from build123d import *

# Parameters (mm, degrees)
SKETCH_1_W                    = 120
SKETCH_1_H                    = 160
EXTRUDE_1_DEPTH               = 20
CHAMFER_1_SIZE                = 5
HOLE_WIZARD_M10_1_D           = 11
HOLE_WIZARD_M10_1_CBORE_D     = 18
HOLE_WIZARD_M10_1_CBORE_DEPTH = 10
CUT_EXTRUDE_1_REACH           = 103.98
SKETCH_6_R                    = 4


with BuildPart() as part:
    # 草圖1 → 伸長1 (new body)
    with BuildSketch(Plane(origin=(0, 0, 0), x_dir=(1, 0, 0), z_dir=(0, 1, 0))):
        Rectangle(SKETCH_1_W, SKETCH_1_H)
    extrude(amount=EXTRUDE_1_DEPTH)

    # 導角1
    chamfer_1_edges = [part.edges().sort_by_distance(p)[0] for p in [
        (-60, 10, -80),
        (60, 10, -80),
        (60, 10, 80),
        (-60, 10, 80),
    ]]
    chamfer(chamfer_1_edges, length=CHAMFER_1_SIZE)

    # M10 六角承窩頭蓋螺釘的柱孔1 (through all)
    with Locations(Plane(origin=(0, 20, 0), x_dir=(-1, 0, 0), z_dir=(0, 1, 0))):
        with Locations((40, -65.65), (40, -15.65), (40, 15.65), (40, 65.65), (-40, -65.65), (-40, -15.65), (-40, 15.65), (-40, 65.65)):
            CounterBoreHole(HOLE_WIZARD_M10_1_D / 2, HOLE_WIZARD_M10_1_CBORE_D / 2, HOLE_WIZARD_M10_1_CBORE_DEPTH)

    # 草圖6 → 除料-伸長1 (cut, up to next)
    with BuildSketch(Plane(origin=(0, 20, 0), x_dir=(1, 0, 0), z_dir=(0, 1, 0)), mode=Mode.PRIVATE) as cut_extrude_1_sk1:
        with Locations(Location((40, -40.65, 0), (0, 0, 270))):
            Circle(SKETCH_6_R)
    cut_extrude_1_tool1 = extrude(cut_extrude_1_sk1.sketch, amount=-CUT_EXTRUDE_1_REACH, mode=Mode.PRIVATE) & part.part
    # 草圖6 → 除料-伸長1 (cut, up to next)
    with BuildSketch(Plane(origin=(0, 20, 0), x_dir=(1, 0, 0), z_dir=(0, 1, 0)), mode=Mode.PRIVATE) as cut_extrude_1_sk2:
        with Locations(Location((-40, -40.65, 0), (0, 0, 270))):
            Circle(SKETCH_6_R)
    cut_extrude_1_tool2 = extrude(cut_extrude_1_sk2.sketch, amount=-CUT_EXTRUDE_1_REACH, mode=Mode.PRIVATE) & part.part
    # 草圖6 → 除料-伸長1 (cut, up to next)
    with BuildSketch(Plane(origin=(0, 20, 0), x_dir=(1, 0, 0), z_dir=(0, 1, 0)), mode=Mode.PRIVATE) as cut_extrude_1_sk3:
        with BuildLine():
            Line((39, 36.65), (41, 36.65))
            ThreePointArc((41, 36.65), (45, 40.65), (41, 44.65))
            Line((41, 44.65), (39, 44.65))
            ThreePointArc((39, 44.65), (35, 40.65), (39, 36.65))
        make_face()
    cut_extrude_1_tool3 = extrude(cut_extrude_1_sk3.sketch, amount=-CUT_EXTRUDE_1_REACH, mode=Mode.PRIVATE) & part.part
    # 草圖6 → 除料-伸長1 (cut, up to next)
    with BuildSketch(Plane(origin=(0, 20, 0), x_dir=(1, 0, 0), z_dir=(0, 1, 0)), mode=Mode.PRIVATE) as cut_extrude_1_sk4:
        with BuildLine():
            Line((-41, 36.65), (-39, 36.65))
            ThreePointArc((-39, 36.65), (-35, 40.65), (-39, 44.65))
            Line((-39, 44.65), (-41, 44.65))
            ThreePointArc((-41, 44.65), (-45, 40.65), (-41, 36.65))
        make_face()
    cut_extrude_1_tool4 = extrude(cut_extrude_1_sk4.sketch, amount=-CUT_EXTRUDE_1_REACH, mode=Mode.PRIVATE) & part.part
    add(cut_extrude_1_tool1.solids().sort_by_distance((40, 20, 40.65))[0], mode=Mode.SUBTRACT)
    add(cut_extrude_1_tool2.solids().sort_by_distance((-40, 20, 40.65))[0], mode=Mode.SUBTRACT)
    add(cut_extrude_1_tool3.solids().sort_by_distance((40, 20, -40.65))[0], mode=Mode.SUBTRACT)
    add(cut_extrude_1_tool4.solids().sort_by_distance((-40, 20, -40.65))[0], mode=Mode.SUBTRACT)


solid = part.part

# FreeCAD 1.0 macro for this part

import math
import FreeCAD as App
import Part
import Sketcher


def edges_at(feature, points):
    """Names of the edges that pass closest to the given points."""
    edges = feature.Shape.Edges
    near = lambda p: min(range(len(edges)), key=lambda i: edges[i].distToShape(Part.Vertex(*p))[0])
    return sorted({f"Edge{near(p) + 1}" for p in points})

doc = App.newDocument("Part")
body = doc.addObject("PartDesign::Body", "Body")

# Sketch on XZ plane
sketch1 = doc.addObject("Sketcher::SketchObject", "Sketch")
body.addObject(sketch1)
sketch1.AttachmentSupport = (doc.XZ_Plane, [""])
sketch1.MapMode = "FlatFace"
sketch1.addGeometry(Part.LineSegment(App.Vector(-60, -80, 0), App.Vector(-60, 80, 0)), False)
sketch1.addGeometry(Part.LineSegment(App.Vector(-60, 80, 0), App.Vector(60, 80, 0)), False)
sketch1.addGeometry(Part.LineSegment(App.Vector(60, 80, 0), App.Vector(60, -80, 0)), False)
sketch1.addGeometry(Part.LineSegment(App.Vector(60, -80, 0), App.Vector(-60, -80, 0)), False)
sketch1.addConstraint(Sketcher.Constraint("Coincident", 0, 2, 1, 1))
sketch1.addConstraint(Sketcher.Constraint("Coincident", 1, 2, 2, 1))
sketch1.addConstraint(Sketcher.Constraint("Coincident", 2, 2, 3, 1))
sketch1.addConstraint(Sketcher.Constraint("Coincident", 3, 2, 0, 1))
sketch1.addConstraint(Sketcher.Constraint("Vertical", 0))
sketch1.addConstraint(Sketcher.Constraint("Horizontal", 1))
sketch1.addConstraint(Sketcher.Constraint("Vertical", 2))
sketch1.addConstraint(Sketcher.Constraint("Horizontal", 3))
sketch1.addConstraint(Sketcher.Constraint("Symmetric", 0, 2, 2, 2, -1, 1))
sketch1.addConstraint(Sketcher.Constraint("DistanceX", 1, 1, 1, 2, 120.0))
sketch1.addConstraint(Sketcher.Constraint("DistanceY", 0, 1, 0, 2, 160.0))
pad1 = doc.addObject("PartDesign::Pad", "Pad")
body.addObject(pad1)
pad1.Profile = sketch1
pad1.Length = 20
pad1.Reversed = True
doc.recompute()

chamfer = doc.addObject("PartDesign::Chamfer", "Chamfer")
body.addObject(chamfer)
chamfer.Base = (pad1, edges_at(pad1, [
    (-60, 10, -80),
    (60, 10, -80),
    (60, 10, 80),
    (-60, 10, 80),
]))
chamfer.Size = 5

# Sketch on XZ plane
sketch2 = doc.addObject("Sketcher::SketchObject", "Sketch001")
body.addObject(sketch2)
sketch2.AttachmentSupport = (doc.XZ_Plane, [""])
sketch2.MapMode = "FlatFace"
sketch2.AttachmentOffset = App.Placement(App.Vector(0, 0, -20), App.Rotation())
sketch2.addGeometry(Part.Circle(App.Vector(-40, -66, 0), App.Vector(0, 0, 1), 6), False)
sketch2.addGeometry(Part.Circle(App.Vector(-40, -16, 0), App.Vector(0, 0, 1), 6), False)
sketch2.addGeometry(Part.Circle(App.Vector(-40, 16, 0), App.Vector(0, 0, 1), 6), False)
sketch2.addGeometry(Part.Circle(App.Vector(-40, 66, 0), App.Vector(0, 0, 1), 6), False)
sketch2.addGeometry(Part.Circle(App.Vector(40, -66, 0), App.Vector(0, 0, 1), 6), False)
sketch2.addGeometry(Part.Circle(App.Vector(40, -16, 0), App.Vector(0, 0, 1), 6), False)
sketch2.addGeometry(Part.Circle(App.Vector(40, 16, 0), App.Vector(0, 0, 1), 6), False)
sketch2.addGeometry(Part.Circle(App.Vector(40, 66, 0), App.Vector(0, 0, 1), 6), False)
sketch2.addConstraint(Sketcher.Constraint("Equal", 0, 1))
sketch2.addConstraint(Sketcher.Constraint("Equal", 1, 2))
sketch2.addConstraint(Sketcher.Constraint("Equal", 2, 3))
sketch2.addConstraint(Sketcher.Constraint("Equal", 3, 4))
sketch2.addConstraint(Sketcher.Constraint("Equal", 4, 5))
sketch2.addConstraint(Sketcher.Constraint("Equal", 5, 6))
sketch2.addConstraint(Sketcher.Constraint("Equal", 6, 7))
sketch2.addConstraint(Sketcher.Constraint("Symmetric", 3, 3, 4, 3, -1, 1))
sketch2.addConstraint(Sketcher.Constraint("Symmetric", 2, 3, 5, 3, -1, 1))
sketch2.addConstraint(Sketcher.Constraint("Symmetric", 1, 3, 6, 3, -1, 1))
sketch2.addConstraint(Sketcher.Constraint("Symmetric", 0, 3, 7, 3, -1, 1))
sketch2.addConstraint(Sketcher.Constraint("Symmetric", 0, 3, 4, 3, -2))
sketch2.addConstraint(Sketcher.Constraint("Symmetric", 1, 3, 5, 3, -2))
sketch2.addConstraint(Sketcher.Constraint("Vertical", 0, 3, 1, 3))
sketch2.addConstraint(Sketcher.Constraint("Diameter", 0, 11.0))
sketch2.addConstraint(Sketcher.Constraint("DistanceX", 0, 3, -1, 1, 40.0))
sketch2.addConstraint(Sketcher.Constraint("DistanceY", 0, 3, 1, 3, 50.0))
sketch2.addConstraint(Sketcher.Constraint("DistanceY", 1, 3, 2, 3, 31.3))
doc.recompute()
hole = doc.addObject("PartDesign::Hole", "Hole")
body.addObject(hole)
hole.Profile = sketch2
hole.ThreadType = "None"
hole.Diameter = 11
hole.DepthType = "ThroughAll"
hole.HoleCutType = "Counterbore"
hole.HoleCutDiameter = 18
hole.HoleCutDepth = 10
hole.Reversed = True

# Sketch on XZ plane
sketch3 = doc.addObject("Sketcher::SketchObject", "Sketch002")
body.addObject(sketch3)
sketch3.AttachmentSupport = (doc.XZ_Plane, [""])
sketch3.MapMode = "FlatFace"
sketch3.AttachmentOffset = App.Placement(App.Vector(0, 0, -20), App.Rotation())
sketch3.addGeometry(Part.Circle(App.Vector(40, 40.6, 0), App.Vector(0, 0, 1), 4), False)
sketch3.addConstraint(Sketcher.Constraint("Diameter", 0, 8.0))
sketch3.addConstraint(Sketcher.Constraint("DistanceX", -1, 1, 0, 3, 40.0))
sketch3.addConstraint(Sketcher.Constraint("DistanceY", -1, 1, 0, 3, 40.65))
pocket1 = doc.addObject("PartDesign::Pocket", "Pocket")
body.addObject(pocket1)
pocket1.Profile = sketch3
pocket1.Type = "UpToFirst"
pocket1.Reversed = True

# Sketch on XZ plane
sketch4 = doc.addObject("Sketcher::SketchObject", "Sketch003")
body.addObject(sketch4)
sketch4.AttachmentSupport = (doc.XZ_Plane, [""])
sketch4.MapMode = "FlatFace"
sketch4.AttachmentOffset = App.Placement(App.Vector(0, 0, -20), App.Rotation())
sketch4.addGeometry(Part.Circle(App.Vector(-40, 40.6, 0), App.Vector(0, 0, 1), 4), False)
sketch4.addConstraint(Sketcher.Constraint("Diameter", 0, 8.0))
sketch4.addConstraint(Sketcher.Constraint("DistanceX", 0, 3, -1, 1, 40.0))
sketch4.addConstraint(Sketcher.Constraint("DistanceY", -1, 1, 0, 3, 40.65))
pocket2 = doc.addObject("PartDesign::Pocket", "Pocket001")
body.addObject(pocket2)
pocket2.Profile = sketch4
pocket2.Type = "UpToFirst"
pocket2.Reversed = True

# Sketch on XZ plane
sketch5 = doc.addObject("Sketcher::SketchObject", "Sketch004")
body.addObject(sketch5)
sketch5.AttachmentSupport = (doc.XZ_Plane, [""])
sketch5.MapMode = "FlatFace"
sketch5.AttachmentOffset = App.Placement(App.Vector(0, 0, -20), App.Rotation())
sketch5.addGeometry(Part.LineSegment(App.Vector(39, -36.6, 0), App.Vector(41, -36.6, 0)), False)
sketch5.addGeometry(Part.ArcOfCircle(Part.Circle(App.Vector(41, -40.6, 0), App.Vector(0, 0, 1), 4), math.radians(-90), math.radians(90)), False)
sketch5.addGeometry(Part.LineSegment(App.Vector(41, -44.6, 0), App.Vector(39, -44.6, 0)), False)
sketch5.addGeometry(Part.ArcOfCircle(Part.Circle(App.Vector(39, -40.6, 0), App.Vector(0, 0, 1), 4), math.radians(90), math.radians(270)), False)
sketch5.addConstraint(Sketcher.Constraint("Tangent", 0, 2, 1, 2))
sketch5.addConstraint(Sketcher.Constraint("Tangent", 1, 1, 2, 1))
sketch5.addConstraint(Sketcher.Constraint("Tangent", 2, 2, 3, 2))
sketch5.addConstraint(Sketcher.Constraint("Tangent", 3, 1, 0, 1))
sketch5.addConstraint(Sketcher.Constraint("Horizontal", 0))
sketch5.addConstraint(Sketcher.Constraint("Horizontal", 2))
sketch5.addConstraint(Sketcher.Constraint("Radius", 1, 4.0))
sketch5.addConstraint(Sketcher.Constraint("DistanceX", 0, 1, 0, 2, 2.0))
sketch5.addConstraint(Sketcher.Constraint("DistanceX", -1, 1, 1, 3, 41.0))
sketch5.addConstraint(Sketcher.Constraint("DistanceY", 1, 3, -1, 1, 40.65))
pocket3 = doc.addObject("PartDesign::Pocket", "Pocket002")
body.addObject(pocket3)
pocket3.Profile = sketch5
pocket3.Type = "UpToFirst"
pocket3.Reversed = True

# Sketch on XZ plane
sketch6 = doc.addObject("Sketcher::SketchObject", "Sketch005")
body.addObject(sketch6)
sketch6.AttachmentSupport = (doc.XZ_Plane, [""])
sketch6.MapMode = "FlatFace"
sketch6.AttachmentOffset = App.Placement(App.Vector(0, 0, -20), App.Rotation())
sketch6.addGeometry(Part.LineSegment(App.Vector(-41, -36.6, 0), App.Vector(-39, -36.6, 0)), False)
sketch6.addGeometry(Part.ArcOfCircle(Part.Circle(App.Vector(-39, -40.6, 0), App.Vector(0, 0, 1), 4), math.radians(-90), math.radians(90)), False)
sketch6.addGeometry(Part.LineSegment(App.Vector(-39, -44.6, 0), App.Vector(-41, -44.6, 0)), False)
sketch6.addGeometry(Part.ArcOfCircle(Part.Circle(App.Vector(-41, -40.6, 0), App.Vector(0, 0, 1), 4), math.radians(90), math.radians(270)), False)
sketch6.addConstraint(Sketcher.Constraint("Tangent", 0, 2, 1, 2))
sketch6.addConstraint(Sketcher.Constraint("Tangent", 1, 1, 2, 1))
sketch6.addConstraint(Sketcher.Constraint("Tangent", 2, 2, 3, 2))
sketch6.addConstraint(Sketcher.Constraint("Tangent", 3, 1, 0, 1))
sketch6.addConstraint(Sketcher.Constraint("Horizontal", 0))
sketch6.addConstraint(Sketcher.Constraint("Horizontal", 2))
sketch6.addConstraint(Sketcher.Constraint("Radius", 1, 4.0))
sketch6.addConstraint(Sketcher.Constraint("DistanceX", 0, 1, 0, 2, 2.0))
sketch6.addConstraint(Sketcher.Constraint("DistanceX", 1, 3, -1, 1, 39.0))
sketch6.addConstraint(Sketcher.Constraint("DistanceY", 1, 3, -1, 1, 40.65))
pocket4 = doc.addObject("PartDesign::Pocket", "Pocket003")
body.addObject(pocket4)
pocket4.Profile = sketch6
pocket4.Type = "UpToFirst"
pocket4.Reversed = True

doc.recompute()
